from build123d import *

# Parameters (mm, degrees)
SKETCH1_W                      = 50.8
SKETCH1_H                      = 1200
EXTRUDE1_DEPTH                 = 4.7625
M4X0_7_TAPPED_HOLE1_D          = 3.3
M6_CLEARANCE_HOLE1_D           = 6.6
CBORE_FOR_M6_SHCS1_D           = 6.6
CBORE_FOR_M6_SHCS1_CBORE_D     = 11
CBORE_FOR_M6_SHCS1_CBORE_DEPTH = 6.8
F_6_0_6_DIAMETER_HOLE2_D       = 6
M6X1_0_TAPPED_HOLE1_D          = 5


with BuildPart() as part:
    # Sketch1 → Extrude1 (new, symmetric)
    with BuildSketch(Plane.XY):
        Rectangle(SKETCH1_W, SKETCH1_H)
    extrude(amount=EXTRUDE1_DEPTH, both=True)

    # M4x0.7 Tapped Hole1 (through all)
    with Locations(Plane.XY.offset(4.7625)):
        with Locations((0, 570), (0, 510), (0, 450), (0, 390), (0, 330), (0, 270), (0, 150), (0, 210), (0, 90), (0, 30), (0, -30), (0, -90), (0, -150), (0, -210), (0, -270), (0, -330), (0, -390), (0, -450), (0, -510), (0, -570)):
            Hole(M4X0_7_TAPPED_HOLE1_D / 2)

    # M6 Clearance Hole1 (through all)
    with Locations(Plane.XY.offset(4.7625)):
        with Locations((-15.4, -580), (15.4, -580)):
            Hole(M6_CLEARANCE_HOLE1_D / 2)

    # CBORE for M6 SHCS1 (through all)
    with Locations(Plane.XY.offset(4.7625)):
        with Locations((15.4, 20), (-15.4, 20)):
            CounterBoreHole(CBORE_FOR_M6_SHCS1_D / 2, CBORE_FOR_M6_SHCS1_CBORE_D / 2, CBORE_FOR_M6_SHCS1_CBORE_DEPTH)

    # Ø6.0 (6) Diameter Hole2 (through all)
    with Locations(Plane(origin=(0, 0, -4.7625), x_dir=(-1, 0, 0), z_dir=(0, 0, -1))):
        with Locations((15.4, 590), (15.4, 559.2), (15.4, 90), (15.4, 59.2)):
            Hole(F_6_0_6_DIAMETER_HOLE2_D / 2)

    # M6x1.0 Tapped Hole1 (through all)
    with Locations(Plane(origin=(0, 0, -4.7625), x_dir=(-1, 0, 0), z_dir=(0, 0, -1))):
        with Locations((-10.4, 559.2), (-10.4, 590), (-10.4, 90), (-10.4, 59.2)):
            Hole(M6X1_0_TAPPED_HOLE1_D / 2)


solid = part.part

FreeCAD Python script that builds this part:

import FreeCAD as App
import Part
import Sketcher
Q = App.Units.Quantity


def add_polygon(sketch, points):
    """Adds a closed chain of lines whose ends are joined by coincident constraints."""
    first, n = sketch.GeometryCount, len(points)
    for a, b in zip(points, points[1:] + points[:1]):
        sketch.addGeometry(Part.LineSegment(App.Vector(*a, 0), App.Vector(*b, 0)), False)
    for i in range(n):
        sketch.addConstraint(Sketcher.Constraint("Coincident", first + i, 2, first + (i + 1) % n, 1))

doc = App.newDocument("Part")
params = doc.addObject("Spreadsheet::Sheet", "Params")
for row, (alias, value) in enumerate([
    ("sketch1_height", "1200 mm"),
    ("sketch1_width", "50.8 mm"),
    ("pad1_length", "9.525 mm"),
    ("sketch2_diameter", "3.3 mm"),
    ("hole_diameter", "3.3 mm"),
    ("sketch3_diameter", "6.6 mm"),
    ("hole2_diameter", "6.6 mm"),
    ("sketch4_diameter", "6.6 mm"),
    ("hole3_diameter", "6.6 mm"),
    ("hole3_cbore_diameter", "11 mm"),
    ("hole3_cbore_depth", "6.8 mm"),
    ("sketch5_diameter", "6 mm"),
    ("hole4_diameter", "6 mm"),
    ("sketch6_diameter", "5 mm"),
    ("hole5_diameter", "5 mm"),
], start=1):
    params.set(f"A{row}", alias)
    params.set(f"B{row}", "=" + value)
    params.setAlias(f"B{row}", alias)

body = doc.addObject("PartDesign::Body", "Body")

sketch1 = body.newObject("Sketcher::SketchObject", "Sketch")
sketch1.AttachmentSupport = (doc.getObject("XY_Plane"), [""])
sketch1.MapMode = "FlatFace"
add_polygon(sketch1, [(-25, 600), (-25, -600), (25, -600), (25, 600)])
sketch1.addConstraint(Sketcher.Constraint("Vertical", 0))
sketch1.addConstraint(Sketcher.Constraint("Horizontal", 1))
sketch1.addConstraint(Sketcher.Constraint("Vertical", 2))
sketch1.addConstraint(Sketcher.Constraint("Horizontal", 3))
sketch1.addConstraint(Sketcher.Constraint("Symmetric", 0, 2, 2, 2, -1, 1))
sketch1.addConstraint(Sketcher.Constraint("DistanceY", 0, 2, 0, 1, Q("1200 mm")))
sketch1.addConstraint(Sketcher.Constraint("DistanceX", 1, 1, 1, 2, Q("50.8 mm")))
sketch1.setExpression("Constraints[9]", "Params.sketch1_height")
sketch1.setExpression("Constraints[10]", "Params.sketch1_width")
pad1 = body.newObject("PartDesign::Pad", "Pad")
pad1.Profile = sketch1
pad1.setExpression("Length", "Params.pad1_length")
pad1.Midplane = True

sketch2 = body.newObject("Sketcher::SketchObject", "Sketch001")
sketch2.AttachmentSupport = (doc.getObject("XY_Plane"), [""])
sketch2.MapMode = "FlatFace"
sketch2.AttachmentOffset = App.Placement(App.Vector(0, 0, 4.7625), App.Rotation())
sketch2.addGeometry(Part.Circle(App.Vector(0, 570, 0), App.Vector(0, 0, 1), 1.6), False)
sketch2.addGeometry(Part.Circle(App.Vector(0, 510, 0), App.Vector(0, 0, 1), 1.6), False)
sketch2.addGeometry(Part.Circle(App.Vector(0, 450, 0), App.Vector(0, 0, 1), 1.6), False)
sketch2.addGeometry(Part.Circle(App.Vector(0, 390, 0), App.Vector(0, 0, 1), 1.6), False)
sketch2.addGeometry(Part.Circle(App.Vector(0, 330, 0), App.Vector(0, 0, 1), 1.6), False)
sketch2.addGeometry(Part.Circle(App.Vector(0, 270, 0), App.Vector(0, 0, 1), 1.6), False)
sketch2.addGeometry(Part.Circle(App.Vector(0, 150, 0), App.Vector(0, 0, 1), 1.6), False)
sketch2.addGeometry(Part.Circle(App.Vector(0, 210, 0), App.Vector(0, 0, 1), 1.6), False)
sketch2.addGeometry(Part.Circle(App.Vector(0, 90, 0), App.Vector(0, 0, 1), 1.6), False)
sketch2.addGeometry(Part.Circle(App.Vector(0, 30, 0), App.Vector(0, 0, 1), 1.6), False)
sketch2.addGeometry(Part.Circle(App.Vector(0, -30, 0), App.Vector(0, 0, 1), 1.6), False)
sketch2.addGeometry(Part.Circle(App.Vector(0, -90, 0), App.Vector(0, 0, 1), 1.6), False)
sketch2.addGeometry(Part.Circle(App.Vector(0, -150, 0), App.Vector(0, 0, 1), 1.6), False)
sketch2.addGeometry(Part.Circle(App.Vector(0, -210, 0), App.Vector(0, 0, 1), 1.6), False)
sketch2.addGeometry(Part.Circle(App.Vector(0, -270, 0), App.Vector(0, 0, 1), 1.6), False)
sketch2.addGeometry(Part.Circle(App.Vector(0, -330, 0), App.Vector(0, 0, 1), 1.6), False)
sketch2.addGeometry(Part.Circle(App.Vector(0, -390, 0), App.Vector(0, 0, 1), 1.6), False)
sketch2.addGeometry(Part.Circle(App.Vector(0, -450, 0), App.Vector(0, 0, 1), 1.6), False)
sketch2.addGeometry(Part.Circle(App.Vector(0, -510, 0), App.Vector(0, 0, 1), 1.6), False)
sketch2.addGeometry(Part.Circle(App.Vector(0, -570, 0), App.Vector(0, 0, 1), 1.6), False)
sketch2.addConstraint(Sketcher.Constraint("Equal", 0, 1))
sketch2.addConstraint(Sketcher.Constraint("Equal", 1, 2))
sketch2.addConstraint(Sketcher.Constraint("Equal", 2, 3))
sketch2.addConstraint(Sketcher.Constraint("Equal", 3, 4))
sketch2.addConstraint(Sketcher.Constraint("Equal", 4, 5))
sketch2.addConstraint(Sketcher.Constraint("Equal", 5, 6))
sketch2.addConstraint(Sketcher.Constraint("Equal", 6, 7))
sketch2.addConstraint(Sketcher.Constraint("Equal", 7, 8))
sketch2.addConstraint(Sketcher.Constraint("Equal", 8, 9))
sketch2.addConstraint(Sketcher.Constraint("Equal", 9, 10))
sketch2.addConstraint(Sketcher.Constraint("Equal", 10, 11))
sketch2.addConstraint(Sketcher.Constraint("Equal", 11, 12))
sketch2.addConstraint(Sketcher.Constraint("Equal", 12, 13))
sketch2.addConstraint(Sketcher.Constraint("Equal", 13, 14))
sketch2.addConstraint(Sketcher.Constraint("Equal", 14, 15))
sketch2.addConstraint(Sketcher.Constraint("Equal", 15, 16))
sketch2.addConstraint(Sketcher.Constraint("Equal", 16, 17))
sketch2.addConstraint(Sketcher.Constraint("Equal", 17, 18))
sketch2.addConstraint(Sketcher.Constraint("Equal", 18, 19))
sketch2.addConstraint(Sketcher.Constraint("Symmetric", 9, 3, 10, 3, -1, 1))
sketch2.addConstraint(Sketcher.Constraint("Symmetric", 8, 3, 11, 3, -1, 1))
sketch2.addConstraint(Sketcher.Constraint("Symmetric", 6, 3, 12, 3, -1, 1))
sketch2.addConstraint(Sketcher.Constraint("Symmetric", 7, 3, 13, 3, -1, 1))
sketch2.addConstraint(Sketcher.Constraint("Symmetric", 5, 3, 14, 3, -1, 1))
sketch2.addConstraint(Sketcher.Constraint("Symmetric", 4, 3, 15, 3, -1, 1))
sketch2.addConstraint(Sketcher.Constraint("Symmetric", 3, 3, 16, 3, -1, 1))
sketch2.addConstraint(Sketcher.Constraint("Symmetric", 2, 3, 17, 3, -1, 1))
sketch2.addConstraint(Sketcher.Constraint("Symmetric", 1, 3, 18, 3, -1, 1))
sketch2.addConstraint(Sketcher.Constraint("Symmetric", 0, 3, 19, 3, -1, 1))
sketch2.addConstraint(Sketcher.Constraint("PointOnObject", 0, 3, -2))
sketch2.addConstraint(Sketcher.Constraint("PointOnObject", 1, 3, -2))
sketch2.addConstraint(Sketcher.Constraint("PointOnObject", 2, 3, -2))
sketch2.addConstraint(Sketcher.Constraint("PointOnObject", 3, 3, -2))
sketch2.addConstraint(Sketcher.Constraint("PointOnObject", 4, 3, -2))
sketch2.addConstraint(Sketcher.Constraint("PointOnObject", 5, 3, -2))
sketch2.addConstraint(Sketcher.Constraint("PointOnObject", 6, 3, -2))
sketch2.addConstraint(Sketcher.Constraint("PointOnObject", 7, 3, -2))
sketch2.addConstraint(Sketcher.Constraint("PointOnObject", 8, 3, -2))
sketch2.addConstraint(Sketcher.Constraint("PointOnObject", 9, 3, -2))
sketch2.addConstraint(Sketcher.Constraint("Diameter", 0, Q("3.3 mm")))
sketch2.addConstraint(Sketcher.Constraint("DistanceY", -1, 1, 0, 3, Q("570 mm")))
sketch2.addConstraint(Sketcher.Constraint("DistanceY", -1, 1, 1, 3, Q("510 mm")))
sketch2.addConstraint(Sketcher.Constraint("DistanceY", -1, 1, 2, 3, Q("450 mm")))
sketch2.addConstraint(Sketcher.Constraint("DistanceY", -1, 1, 3, 3, Q("390 mm")))
sketch2.addConstraint(Sketcher.Constraint("DistanceY", -1, 1, 4, 3, Q("330 mm")))
sketch2.addConstraint(Sketcher.Constraint("DistanceY", -1, 1, 5, 3, Q("270 mm")))
sketch2.addConstraint(Sketcher.Constraint("DistanceY", -1, 1, 6, 3, Q("150 mm")))
sketch2.addConstraint(Sketcher.Constraint("DistanceY", -1, 1, 7, 3, Q("210 mm")))
sketch2.addConstraint(Sketcher.Constraint("DistanceY", -1, 1, 8, 3, Q("90 mm")))
sketch2.addConstraint(Sketcher.Constraint("DistanceY", -1, 1, 9, 3, Q("30 mm")))
sketch2.setExpression("Constraints[39]", "Params.sketch2_diameter")
doc.recompute()
hole = body.newObject("PartDesign::Hole", "Hole")
hole.Profile = sketch2
hole.ThreadType = "None"
hole.setExpression("Diameter", "Params.hole_diameter")
hole.DepthType = "ThroughAll"

sketch3 = body.newObject("Sketcher::SketchObject", "Sketch002")
sketch3.AttachmentSupport = (doc.getObject("XY_Plane"), [""])
sketch3.MapMode = "FlatFace"
sketch3.AttachmentOffset = App.Placement(App.Vector(0, 0, 4.7625), App.Rotation())
sketch3.addGeometry(Part.Circle(App.Vector(-15.4, -580, 0), App.Vector(0, 0, 1), 3.3), False)
sketch3.addGeometry(Part.Circle(App.Vector(15.4, -580, 0), App.Vector(0, 0, 1), 3.3), False)
sketch3.addConstraint(Sketcher.Constraint("Equal", 0, 1))
sketch3.addConstraint(Sketcher.Constraint("Symmetric", 0, 3, 1, 3, -2))
sketch3.addConstraint(Sketcher.Constraint("Diameter", 0, Q("6.6 mm")))
sketch3.addConstraint(Sketcher.Constraint("DistanceY", 0, 3, -1, 1, Q("580 mm")))
sketch3.addConstraint(Sketcher.Constraint("DistanceX", 0, 3, -1, 1, Q("15.4 mm")))
sketch3.setExpression("Constraints[2]", "Params.sketch3_diameter")
doc.recompute()
hole2 = body.newObject("PartDesign::Hole", "Hole001")
hole2.Profile = sketch3
hole2.ThreadType = "None"
hole2.setExpression("Diameter", "Params.hole2_diameter")
hole2.DepthType = "ThroughAll"

sketch4 = body.newObject("Sketcher::SketchObject", "Sketch003")
sketch4.AttachmentSupport = (doc.getObject("XY_Plane"), [""])
sketch4.MapMode = "FlatFace"
sketch4.AttachmentOffset = App.Placement(App.Vector(0, 0, 4.7625), App.Rotation())
sketch4.addGeometry(Part.Circle(App.Vector(15.4, 20, 0), App.Vector(0, 0, 1), 3.3), False)
sketch4.addGeometry(Part.Circle(App.Vector(-15.4, 20, 0), App.Vector(0, 0, 1), 3.3), False)
sketch4.addConstraint(Sketcher.Constraint("Equal", 0, 1))
sketch4.addConstraint(Sketcher.Constraint("Symmetric", 0, 3, 1, 3, -2))
sketch4.addConstraint(Sketcher.Constraint("Diameter", 0, Q("6.6 mm")))
sketch4.addConstraint(Sketcher.Constraint("DistanceY", -1, 1, 0, 3, Q("20 mm")))
sketch4.addConstraint(Sketcher.Constraint("DistanceX", -1, 1, 0, 3, Q("15.4 mm")))
sketch4.setExpression("Constraints[2]", "Params.sketch4_diameter")
doc.recompute()
hole3 = body.newObject("PartDesign::Hole", "Hole002")
hole3.Profile = sketch4
hole3.ThreadType = "None"
hole3.setExpression("Diameter", "Params.hole3_diameter")
hole3.DepthType = "ThroughAll"
hole3.HoleCutType = "Counterbore"
hole3.setExpression("HoleCutDiameter", "Params.hole3_cbore_diameter")
hole3.setExpression("HoleCutDepth", "Params.hole3_cbore_depth")

sketch5 = body.newObject("Sketcher::SketchObject", "Sketch004")
sketch5.AttachmentSupport = (doc.getObject("XY_Plane"), [""])
sketch5.MapMode = "FlatFace"
sketch5.AttachmentOffset = App.Placement(App.Vector(0, 0, -4.7625), App.Rotation())
sketch5.addGeometry(Part.Circle(App.Vector(-15.4, 590, 0), App.Vector(0, 0, 1), 3), False)
sketch5.addGeometry(Part.Circle(App.Vector(-15.4, 559.2, 0), App.Vector(0, 0, 1), 3), False)
sketch5.addGeometry(Part.Circle(App.Vector(-15.4, 90, 0), App.Vector(0, 0, 1), 3), False)
sketch5.addGeometry(Part.Circle(App.Vector(-15.4, 59.2, 0), App.Vector(0, 0, 1), 3), False)
sketch5.addConstraint(Sketcher.Constraint("Equal", 0, 1))
sketch5.addConstraint(Sketcher.Constraint("Equal", 1, 2))
sketch5.addConstraint(Sketcher.Constraint("Equal", 2, 3))
sketch5.addConstraint(Sketcher.Constraint("Vertical", 0, 3, 1, 3))
sketch5.addConstraint(Sketcher.Constraint("Vertical", 1, 3, 2, 3))
sketch5.addConstraint(Sketcher.Constraint("Vertical", 2, 3, 3, 3))
sketch5.addConstraint(Sketcher.Constraint("Diameter", 0, Q("6 mm")))
sketch5.addConstraint(Sketcher.Constraint("DistanceY", -1, 1, 0, 3, Q("590 mm")))
sketch5.addConstraint(Sketcher.Constraint("DistanceY", -1, 1, 2, 3, Q("90 mm")))
sketch5.addConstraint(Sketcher.Constraint("DistanceY", 3, 3, 1, 3, Q("500 mm")))
sketch5.addConstraint(Sketcher.Constraint("DistanceX", 0, 3, -1, 1, Q("15.4 mm")))
sketch5.addConstraint(Sketcher.Constraint("DistanceY", -1, 1, 1, 3, Q("559.2 mm")))
sketch5.setExpression("Constraints[6]", "Params.sketch5_diameter")
doc.recompute()
hole4 = body.newObject("PartDesign::Hole", "Hole003")
hole4.Profile = sketch5
hole4.ThreadType = "None"
hole4.setExpression("Diameter", "Params.hole4_diameter")
hole4.DepthType = "ThroughAll"
hole4.Reversed = True

sketch6 = body.newObject("Sketcher::SketchObject", "Sketch005")
sketch6.AttachmentSupport = (doc.getObject("XY_Plane"), [""])
sketch6.MapMode = "FlatFace"
sketch6.AttachmentOffset = App.Placement(App.Vector(0, 0, -4.7625), App.Rotation())
sketch6.addGeometry(Part.Circle(App.Vector(10.4, 559.2, 0), App.Vector(0, 0, 1), 2.5), False)
sketch6.addGeometry(Part.Circle(App.Vector(10.4, 590, 0), App.Vector(0, 0, 1), 2.5), False)
sketch6.addGeometry(Part.Circle(App.Vector(10.4, 90, 0), App.Vector(0, 0, 1), 2.5), False)
sketch6.addGeometry(Part.Circle(App.Vector(10.4, 59.2, 0), App.Vector(0, 0, 1), 2.5), False)
sketch6.addConstraint(Sketcher.Constraint("Equal", 0, 1))
sketch6.addConstraint(Sketcher.Constraint("Equal", 1, 2))
sketch6.addConstraint(Sketcher.Constraint("Equal", 2, 3))
sketch6.addConstraint(Sketcher.Constraint("Vertical", 0, 3, 1, 3))
sketch6.addConstraint(Sketcher.Constraint("Vertical", 1, 3, 2, 3))
sketch6.addConstraint(Sketcher.Constraint("Vertical", 2, 3, 3, 3))
sketch6.addConstraint(Sketcher.Constraint("Diameter", 0, Q("5 mm")))
sketch6.addConstraint(Sketcher.Constraint("DistanceY", -1, 1, 1, 3, Q("590 mm")))
sketch6.addConstraint(Sketcher.Constraint("DistanceY", -1, 1, 2, 3, Q("90 mm")))
sketch6.addConstraint(Sketcher.Constraint("DistanceY", 3, 3, 0, 3, Q("500 mm")))
sketch6.addConstraint(Sketcher.Constraint("DistanceX", -1, 1, 0, 3, Q("10.4 mm")))
sketch6.addConstraint(Sketcher.Constraint("DistanceY", -1, 1, 0, 3, Q("559.2 mm")))
sketch6.setExpression("Constraints[6]", "Params.sketch6_diameter")
doc.recompute()
hole5 = body.newObject("PartDesign::Hole", "Hole004")
hole5.Profile = sketch6
hole5.ThreadType = "None"
hole5.setExpression("Diameter", "Params.hole5_diameter")
hole5.DepthType = "ThroughAll"
hole5.Reversed = True

doc.recompute()
